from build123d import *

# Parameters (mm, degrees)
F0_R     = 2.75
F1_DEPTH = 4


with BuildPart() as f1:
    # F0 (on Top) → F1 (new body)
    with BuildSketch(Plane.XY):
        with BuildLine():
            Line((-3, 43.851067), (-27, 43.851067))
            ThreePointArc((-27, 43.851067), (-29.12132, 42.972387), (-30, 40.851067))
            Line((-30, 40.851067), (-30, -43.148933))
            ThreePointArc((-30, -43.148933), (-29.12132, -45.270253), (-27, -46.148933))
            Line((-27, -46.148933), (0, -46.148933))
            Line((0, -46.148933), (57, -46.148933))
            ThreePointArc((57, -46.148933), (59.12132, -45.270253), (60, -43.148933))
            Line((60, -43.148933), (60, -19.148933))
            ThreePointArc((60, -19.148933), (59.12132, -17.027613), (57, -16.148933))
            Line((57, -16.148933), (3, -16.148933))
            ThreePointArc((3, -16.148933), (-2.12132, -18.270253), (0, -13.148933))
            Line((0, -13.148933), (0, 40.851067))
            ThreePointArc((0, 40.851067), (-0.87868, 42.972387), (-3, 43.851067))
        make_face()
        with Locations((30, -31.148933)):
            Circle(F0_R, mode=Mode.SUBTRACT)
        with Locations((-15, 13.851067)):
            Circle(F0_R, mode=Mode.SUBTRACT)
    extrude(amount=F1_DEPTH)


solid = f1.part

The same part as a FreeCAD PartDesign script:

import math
import FreeCAD as App
import Part
import Sketcher
from FreeCAD import Vector

doc = App.newDocument("Part")
params = doc.addObject("Spreadsheet::Sheet", "Params")
for row, (alias, value) in enumerate([
    ("sketch1_radius", "3.000001 mm"),
    ("sketch1_diameter", "5.5 mm"),
    ("sketch1_width", "24 mm"),
    ("sketch1_width2", "84 mm"),
    ("pad1_length", "4 mm"),
], start=1):
    params.set(f"A{row}", alias)
    params.set(f"B{row}", "=" + value)
    params.setAlias(f"B{row}", alias)

body = doc.addObject("PartDesign::Body", "Body")

# Sketch on XY plane
sketch1 = body.newObject("Sketcher::SketchObject", "Sketch")
sketch1.AttachmentSupport = (doc.getObject("XY_Plane"), [""])
sketch1.MapMode = "FlatFace"
sketch1.addGeometry(Part.LineSegment(Vector(-3, 43.9, 0), Vector(-27, 43.9, 0)), False)
sketch1.addGeometry(Part.ArcOfCircle(Part.Circle(Vector(-27, 40.9, 0), Vector(0, 0, 1), 3), math.radians(90), math.radians(180)), False)
sketch1.addGeometry(Part.LineSegment(Vector(-30, 40.9, 0), Vector(-30, -43.1, 0)), False)
sketch1.addGeometry(Part.ArcOfCircle(Part.Circle(Vector(-27, -43.1, 0), Vector(0, 0, 1), 3), math.radians(-180), math.radians(-90)), False)
sketch1.addGeometry(Part.LineSegment(Vector(-27, -46.1, 0), Vector(57, -46.1, 0)), False)
sketch1.addGeometry(Part.ArcOfCircle(Part.Circle(Vector(57, -43.1, 0), Vector(0, 0, 1), 3), math.radians(-90), math.radians(0)), False)
sketch1.addGeometry(Part.LineSegment(Vector(60, -43.1, 0), Vector(60, -19.1, 0)), False)
sketch1.addGeometry(Part.ArcOfCircle(Part.Circle(Vector(57, -19.1, 0), Vector(0, 0, 1), 3), math.radians(0), math.radians(90)), False)
sketch1.addGeometry(Part.LineSegment(Vector(57, -16.1, 0), Vector(3, -16.1, 0)), False)
sketch1.addGeometry(Part.ArcOfCircle(Part.Circle(Vector(0, -16.1, 0), Vector(0, 0, 1), 3), math.radians(90), math.radians(360)), False)
sketch1.addGeometry(Part.LineSegment(Vector(0, -13.1, 0), Vector(0, 40.9, 0)), False)
sketch1.addGeometry(Part.ArcOfCircle(Part.Circle(Vector(-3, 40.9, 0), Vector(0, 0, 1), 3), math.radians(0), math.radians(90)), False)
sketch1.addGeometry(Part.Circle(Vector(30, -31.1, 0), Vector(0, 0, 1), 2.8), False)
sketch1.addGeometry(Part.Circle(Vector(-15, 13.9, 0), Vector(0, 0, 1), 2.8), False)
sketch1.addConstraint(Sketcher.Constraint("Tangent", 0, 2, 1, 1))
sketch1.addConstraint(Sketcher.Constraint("Tangent", 1, 2, 2, 1))
sketch1.addConstraint(Sketcher.Constraint("Tangent", 2, 2, 3, 1))
sketch1.addConstraint(Sketcher.Constraint("Tangent", 3, 2, 4, 1))
sketch1.addConstraint(Sketcher.Constraint("Tangent", 4, 2, 5, 1))
sketch1.addConstraint(Sketcher.Constraint("Tangent", 5, 2, 6, 1))
sketch1.addConstraint(Sketcher.Constraint("Tangent", 6, 2, 7, 1))
sketch1.addConstraint(Sketcher.Constraint("Tangent", 7, 2, 8, 1))
sketch1.addConstraint(Sketcher.Constraint("Coincident", 8, 2, 9, 2))
sketch1.addConstraint(Sketcher.Constraint("Coincident", 9, 1, 10, 1))
sketch1.addConstraint(Sketcher.Constraint("Tangent", 10, 2, 11, 1))
sketch1.addConstraint(Sketcher.Constraint("Tangent", 11, 2, 0, 1))
sketch1.addConstraint(Sketcher.Constraint("Horizontal", 0))
sketch1.addConstraint(Sketcher.Constraint("Vertical", 2))
sketch1.addConstraint(Sketcher.Constraint("Horizontal", 4))
sketch1.addConstraint(Sketcher.Constraint("Vertical", 6))
sketch1.addConstraint(Sketcher.Constraint("Horizontal", 8))
sketch1.addConstraint(Sketcher.Constraint("Vertical", 10))
sketch1.addConstraint(Sketcher.Constraint("Equal", 1, 3))
sketch1.addConstraint(Sketcher.Constraint("Equal", 3, 5))
sketch1.addConstraint(Sketcher.Constraint("Equal", 5, 7))
sketch1.addConstraint(Sketcher.Constraint("Equal", 7, 9))
sketch1.addConstraint(Sketcher.Constraint("Equal", 9, 11))
sketch1.addConstraint(Sketcher.Constraint("Equal", 12, 13))
sketch1.addConstraint(Sketcher.Constraint("PointOnObject", 9, 3, -2))
sketch1.addConstraint(Sketcher.Constraint("PointOnObject", 9, 1, -2))
sketch1.addConstraint(Sketcher.Constraint("Horizontal", 9, 3, 7, 2))
sketch1.addConstraint(Sketcher.Constraint("Equal", 4, 2))
sketch1.addConstraint(Sketcher.Constraint("Equal", 0, 6))
sketch1.addConstraint(Sketcher.Constraint("Radius", 1, 3.000001))
sketch1.addConstraint(Sketcher.Constraint("Diameter", 12, 5.5))
sketch1.addConstraint(Sketcher.Constraint("DistanceX", 0, 2, 0, 1, 24.0))
sketch1.addConstraint(Sketcher.Constraint("DistanceX", 4, 1, 4, 2, 84.0))
sketch1.addConstraint(Sketcher.Constraint("DistanceX", -1, 1, 12, 3, 30.0))
sketch1.addConstraint(Sketcher.Constraint("DistanceX", 13, 3, -1, 1, 15.0))
sketch1.addConstraint(Sketcher.Constraint("DistanceY", 5, 3, 12, 3, 11.999999))
sketch1.addConstraint(Sketcher.Constraint("DistanceY", 13, 3, 1, 3, 26.999999))
sketch1.addConstraint(Sketcher.Constraint("DistanceY", 3, 3, -1, 1, 43.148932))
sketch1.setExpression("Constraints[29]", "Params.sketch1_radius")
sketch1.setExpression("Constraints[30]", "Params.sketch1_diameter")
sketch1.setExpression("Constraints[31]", "Params.sketch1_width")
sketch1.setExpression("Constraints[32]", "Params.sketch1_width2")
pad1 = body.newObject("PartDesign::Pad", "Pad")
pad1.Profile = sketch1
pad1.setExpression("Length", "Params.pad1_length")

doc.recompute()
